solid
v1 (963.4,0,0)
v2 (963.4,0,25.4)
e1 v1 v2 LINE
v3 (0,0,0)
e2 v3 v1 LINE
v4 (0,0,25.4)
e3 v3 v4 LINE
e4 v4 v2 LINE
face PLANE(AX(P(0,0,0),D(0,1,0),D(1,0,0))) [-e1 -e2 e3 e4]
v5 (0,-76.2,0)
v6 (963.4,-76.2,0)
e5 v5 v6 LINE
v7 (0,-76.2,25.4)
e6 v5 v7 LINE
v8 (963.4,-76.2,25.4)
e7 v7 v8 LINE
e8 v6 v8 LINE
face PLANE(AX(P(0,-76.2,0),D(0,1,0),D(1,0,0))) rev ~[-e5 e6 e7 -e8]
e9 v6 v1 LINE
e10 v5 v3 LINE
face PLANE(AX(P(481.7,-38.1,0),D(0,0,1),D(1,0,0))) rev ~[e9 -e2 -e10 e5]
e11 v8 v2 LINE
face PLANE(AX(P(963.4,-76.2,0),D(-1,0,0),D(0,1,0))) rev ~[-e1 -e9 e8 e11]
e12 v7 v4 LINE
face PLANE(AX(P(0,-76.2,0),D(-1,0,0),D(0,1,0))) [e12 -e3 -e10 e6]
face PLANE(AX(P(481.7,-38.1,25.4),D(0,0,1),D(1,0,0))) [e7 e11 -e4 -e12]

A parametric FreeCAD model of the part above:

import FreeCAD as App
import Part
import Sketcher
from FreeCAD import Vector
Q = App.Units.Quantity

doc = App.newDocument("Part")
body = doc.addObject("PartDesign::Body", "Body")

sketch1 = doc.addObject("Sketcher::SketchObject", "Sketch")
body.addObject(sketch1)
sketch1.AttachmentSupport = (doc.XY_Plane, [""])
sketch1.MapMode = "FlatFace"
sketch1.addGeometry([
    Part.LineSegment(Vector(0, 0, 0), Vector(0, -76, 0)),
    Part.LineSegment(Vector(0, -76, 0), Vector(963, -76, 0)),
    Part.LineSegment(Vector(963, -76, 0), Vector(963, 0, 0)),
    Part.LineSegment(Vector(963, 0, 0), Vector(0, 0, 0)),
], False)
sketch1.addConstraint([
    Sketcher.Constraint("Coincident", 0, 2, 1, 1),
    Sketcher.Constraint("Coincident", 1, 2, 2, 1),
    Sketcher.Constraint("Coincident", 2, 2, 3, 1),
    Sketcher.Constraint("Coincident", 3, 2, 0, 1),
    Sketcher.Constraint("Vertical", 0),
    Sketcher.Constraint("Horizontal", 1),
    Sketcher.Constraint("Vertical", 2),
    Sketcher.Constraint("Horizontal", 3),
    Sketcher.Constraint("Coincident", 3, 2, -1, 1),
    Sketcher.Constraint("DistanceY", 0, 2, 0, 1, Q("3 in")),
    Sketcher.Constraint("DistanceX", 1, 1, 1, 2, Q("963.4 mm")),
])
pad1 = doc.addObject("PartDesign::Pad", "Pad")
body.addObject(pad1)
pad1.Profile = sketch1
pad1.Length = Q("1 in")

doc.recompute()
